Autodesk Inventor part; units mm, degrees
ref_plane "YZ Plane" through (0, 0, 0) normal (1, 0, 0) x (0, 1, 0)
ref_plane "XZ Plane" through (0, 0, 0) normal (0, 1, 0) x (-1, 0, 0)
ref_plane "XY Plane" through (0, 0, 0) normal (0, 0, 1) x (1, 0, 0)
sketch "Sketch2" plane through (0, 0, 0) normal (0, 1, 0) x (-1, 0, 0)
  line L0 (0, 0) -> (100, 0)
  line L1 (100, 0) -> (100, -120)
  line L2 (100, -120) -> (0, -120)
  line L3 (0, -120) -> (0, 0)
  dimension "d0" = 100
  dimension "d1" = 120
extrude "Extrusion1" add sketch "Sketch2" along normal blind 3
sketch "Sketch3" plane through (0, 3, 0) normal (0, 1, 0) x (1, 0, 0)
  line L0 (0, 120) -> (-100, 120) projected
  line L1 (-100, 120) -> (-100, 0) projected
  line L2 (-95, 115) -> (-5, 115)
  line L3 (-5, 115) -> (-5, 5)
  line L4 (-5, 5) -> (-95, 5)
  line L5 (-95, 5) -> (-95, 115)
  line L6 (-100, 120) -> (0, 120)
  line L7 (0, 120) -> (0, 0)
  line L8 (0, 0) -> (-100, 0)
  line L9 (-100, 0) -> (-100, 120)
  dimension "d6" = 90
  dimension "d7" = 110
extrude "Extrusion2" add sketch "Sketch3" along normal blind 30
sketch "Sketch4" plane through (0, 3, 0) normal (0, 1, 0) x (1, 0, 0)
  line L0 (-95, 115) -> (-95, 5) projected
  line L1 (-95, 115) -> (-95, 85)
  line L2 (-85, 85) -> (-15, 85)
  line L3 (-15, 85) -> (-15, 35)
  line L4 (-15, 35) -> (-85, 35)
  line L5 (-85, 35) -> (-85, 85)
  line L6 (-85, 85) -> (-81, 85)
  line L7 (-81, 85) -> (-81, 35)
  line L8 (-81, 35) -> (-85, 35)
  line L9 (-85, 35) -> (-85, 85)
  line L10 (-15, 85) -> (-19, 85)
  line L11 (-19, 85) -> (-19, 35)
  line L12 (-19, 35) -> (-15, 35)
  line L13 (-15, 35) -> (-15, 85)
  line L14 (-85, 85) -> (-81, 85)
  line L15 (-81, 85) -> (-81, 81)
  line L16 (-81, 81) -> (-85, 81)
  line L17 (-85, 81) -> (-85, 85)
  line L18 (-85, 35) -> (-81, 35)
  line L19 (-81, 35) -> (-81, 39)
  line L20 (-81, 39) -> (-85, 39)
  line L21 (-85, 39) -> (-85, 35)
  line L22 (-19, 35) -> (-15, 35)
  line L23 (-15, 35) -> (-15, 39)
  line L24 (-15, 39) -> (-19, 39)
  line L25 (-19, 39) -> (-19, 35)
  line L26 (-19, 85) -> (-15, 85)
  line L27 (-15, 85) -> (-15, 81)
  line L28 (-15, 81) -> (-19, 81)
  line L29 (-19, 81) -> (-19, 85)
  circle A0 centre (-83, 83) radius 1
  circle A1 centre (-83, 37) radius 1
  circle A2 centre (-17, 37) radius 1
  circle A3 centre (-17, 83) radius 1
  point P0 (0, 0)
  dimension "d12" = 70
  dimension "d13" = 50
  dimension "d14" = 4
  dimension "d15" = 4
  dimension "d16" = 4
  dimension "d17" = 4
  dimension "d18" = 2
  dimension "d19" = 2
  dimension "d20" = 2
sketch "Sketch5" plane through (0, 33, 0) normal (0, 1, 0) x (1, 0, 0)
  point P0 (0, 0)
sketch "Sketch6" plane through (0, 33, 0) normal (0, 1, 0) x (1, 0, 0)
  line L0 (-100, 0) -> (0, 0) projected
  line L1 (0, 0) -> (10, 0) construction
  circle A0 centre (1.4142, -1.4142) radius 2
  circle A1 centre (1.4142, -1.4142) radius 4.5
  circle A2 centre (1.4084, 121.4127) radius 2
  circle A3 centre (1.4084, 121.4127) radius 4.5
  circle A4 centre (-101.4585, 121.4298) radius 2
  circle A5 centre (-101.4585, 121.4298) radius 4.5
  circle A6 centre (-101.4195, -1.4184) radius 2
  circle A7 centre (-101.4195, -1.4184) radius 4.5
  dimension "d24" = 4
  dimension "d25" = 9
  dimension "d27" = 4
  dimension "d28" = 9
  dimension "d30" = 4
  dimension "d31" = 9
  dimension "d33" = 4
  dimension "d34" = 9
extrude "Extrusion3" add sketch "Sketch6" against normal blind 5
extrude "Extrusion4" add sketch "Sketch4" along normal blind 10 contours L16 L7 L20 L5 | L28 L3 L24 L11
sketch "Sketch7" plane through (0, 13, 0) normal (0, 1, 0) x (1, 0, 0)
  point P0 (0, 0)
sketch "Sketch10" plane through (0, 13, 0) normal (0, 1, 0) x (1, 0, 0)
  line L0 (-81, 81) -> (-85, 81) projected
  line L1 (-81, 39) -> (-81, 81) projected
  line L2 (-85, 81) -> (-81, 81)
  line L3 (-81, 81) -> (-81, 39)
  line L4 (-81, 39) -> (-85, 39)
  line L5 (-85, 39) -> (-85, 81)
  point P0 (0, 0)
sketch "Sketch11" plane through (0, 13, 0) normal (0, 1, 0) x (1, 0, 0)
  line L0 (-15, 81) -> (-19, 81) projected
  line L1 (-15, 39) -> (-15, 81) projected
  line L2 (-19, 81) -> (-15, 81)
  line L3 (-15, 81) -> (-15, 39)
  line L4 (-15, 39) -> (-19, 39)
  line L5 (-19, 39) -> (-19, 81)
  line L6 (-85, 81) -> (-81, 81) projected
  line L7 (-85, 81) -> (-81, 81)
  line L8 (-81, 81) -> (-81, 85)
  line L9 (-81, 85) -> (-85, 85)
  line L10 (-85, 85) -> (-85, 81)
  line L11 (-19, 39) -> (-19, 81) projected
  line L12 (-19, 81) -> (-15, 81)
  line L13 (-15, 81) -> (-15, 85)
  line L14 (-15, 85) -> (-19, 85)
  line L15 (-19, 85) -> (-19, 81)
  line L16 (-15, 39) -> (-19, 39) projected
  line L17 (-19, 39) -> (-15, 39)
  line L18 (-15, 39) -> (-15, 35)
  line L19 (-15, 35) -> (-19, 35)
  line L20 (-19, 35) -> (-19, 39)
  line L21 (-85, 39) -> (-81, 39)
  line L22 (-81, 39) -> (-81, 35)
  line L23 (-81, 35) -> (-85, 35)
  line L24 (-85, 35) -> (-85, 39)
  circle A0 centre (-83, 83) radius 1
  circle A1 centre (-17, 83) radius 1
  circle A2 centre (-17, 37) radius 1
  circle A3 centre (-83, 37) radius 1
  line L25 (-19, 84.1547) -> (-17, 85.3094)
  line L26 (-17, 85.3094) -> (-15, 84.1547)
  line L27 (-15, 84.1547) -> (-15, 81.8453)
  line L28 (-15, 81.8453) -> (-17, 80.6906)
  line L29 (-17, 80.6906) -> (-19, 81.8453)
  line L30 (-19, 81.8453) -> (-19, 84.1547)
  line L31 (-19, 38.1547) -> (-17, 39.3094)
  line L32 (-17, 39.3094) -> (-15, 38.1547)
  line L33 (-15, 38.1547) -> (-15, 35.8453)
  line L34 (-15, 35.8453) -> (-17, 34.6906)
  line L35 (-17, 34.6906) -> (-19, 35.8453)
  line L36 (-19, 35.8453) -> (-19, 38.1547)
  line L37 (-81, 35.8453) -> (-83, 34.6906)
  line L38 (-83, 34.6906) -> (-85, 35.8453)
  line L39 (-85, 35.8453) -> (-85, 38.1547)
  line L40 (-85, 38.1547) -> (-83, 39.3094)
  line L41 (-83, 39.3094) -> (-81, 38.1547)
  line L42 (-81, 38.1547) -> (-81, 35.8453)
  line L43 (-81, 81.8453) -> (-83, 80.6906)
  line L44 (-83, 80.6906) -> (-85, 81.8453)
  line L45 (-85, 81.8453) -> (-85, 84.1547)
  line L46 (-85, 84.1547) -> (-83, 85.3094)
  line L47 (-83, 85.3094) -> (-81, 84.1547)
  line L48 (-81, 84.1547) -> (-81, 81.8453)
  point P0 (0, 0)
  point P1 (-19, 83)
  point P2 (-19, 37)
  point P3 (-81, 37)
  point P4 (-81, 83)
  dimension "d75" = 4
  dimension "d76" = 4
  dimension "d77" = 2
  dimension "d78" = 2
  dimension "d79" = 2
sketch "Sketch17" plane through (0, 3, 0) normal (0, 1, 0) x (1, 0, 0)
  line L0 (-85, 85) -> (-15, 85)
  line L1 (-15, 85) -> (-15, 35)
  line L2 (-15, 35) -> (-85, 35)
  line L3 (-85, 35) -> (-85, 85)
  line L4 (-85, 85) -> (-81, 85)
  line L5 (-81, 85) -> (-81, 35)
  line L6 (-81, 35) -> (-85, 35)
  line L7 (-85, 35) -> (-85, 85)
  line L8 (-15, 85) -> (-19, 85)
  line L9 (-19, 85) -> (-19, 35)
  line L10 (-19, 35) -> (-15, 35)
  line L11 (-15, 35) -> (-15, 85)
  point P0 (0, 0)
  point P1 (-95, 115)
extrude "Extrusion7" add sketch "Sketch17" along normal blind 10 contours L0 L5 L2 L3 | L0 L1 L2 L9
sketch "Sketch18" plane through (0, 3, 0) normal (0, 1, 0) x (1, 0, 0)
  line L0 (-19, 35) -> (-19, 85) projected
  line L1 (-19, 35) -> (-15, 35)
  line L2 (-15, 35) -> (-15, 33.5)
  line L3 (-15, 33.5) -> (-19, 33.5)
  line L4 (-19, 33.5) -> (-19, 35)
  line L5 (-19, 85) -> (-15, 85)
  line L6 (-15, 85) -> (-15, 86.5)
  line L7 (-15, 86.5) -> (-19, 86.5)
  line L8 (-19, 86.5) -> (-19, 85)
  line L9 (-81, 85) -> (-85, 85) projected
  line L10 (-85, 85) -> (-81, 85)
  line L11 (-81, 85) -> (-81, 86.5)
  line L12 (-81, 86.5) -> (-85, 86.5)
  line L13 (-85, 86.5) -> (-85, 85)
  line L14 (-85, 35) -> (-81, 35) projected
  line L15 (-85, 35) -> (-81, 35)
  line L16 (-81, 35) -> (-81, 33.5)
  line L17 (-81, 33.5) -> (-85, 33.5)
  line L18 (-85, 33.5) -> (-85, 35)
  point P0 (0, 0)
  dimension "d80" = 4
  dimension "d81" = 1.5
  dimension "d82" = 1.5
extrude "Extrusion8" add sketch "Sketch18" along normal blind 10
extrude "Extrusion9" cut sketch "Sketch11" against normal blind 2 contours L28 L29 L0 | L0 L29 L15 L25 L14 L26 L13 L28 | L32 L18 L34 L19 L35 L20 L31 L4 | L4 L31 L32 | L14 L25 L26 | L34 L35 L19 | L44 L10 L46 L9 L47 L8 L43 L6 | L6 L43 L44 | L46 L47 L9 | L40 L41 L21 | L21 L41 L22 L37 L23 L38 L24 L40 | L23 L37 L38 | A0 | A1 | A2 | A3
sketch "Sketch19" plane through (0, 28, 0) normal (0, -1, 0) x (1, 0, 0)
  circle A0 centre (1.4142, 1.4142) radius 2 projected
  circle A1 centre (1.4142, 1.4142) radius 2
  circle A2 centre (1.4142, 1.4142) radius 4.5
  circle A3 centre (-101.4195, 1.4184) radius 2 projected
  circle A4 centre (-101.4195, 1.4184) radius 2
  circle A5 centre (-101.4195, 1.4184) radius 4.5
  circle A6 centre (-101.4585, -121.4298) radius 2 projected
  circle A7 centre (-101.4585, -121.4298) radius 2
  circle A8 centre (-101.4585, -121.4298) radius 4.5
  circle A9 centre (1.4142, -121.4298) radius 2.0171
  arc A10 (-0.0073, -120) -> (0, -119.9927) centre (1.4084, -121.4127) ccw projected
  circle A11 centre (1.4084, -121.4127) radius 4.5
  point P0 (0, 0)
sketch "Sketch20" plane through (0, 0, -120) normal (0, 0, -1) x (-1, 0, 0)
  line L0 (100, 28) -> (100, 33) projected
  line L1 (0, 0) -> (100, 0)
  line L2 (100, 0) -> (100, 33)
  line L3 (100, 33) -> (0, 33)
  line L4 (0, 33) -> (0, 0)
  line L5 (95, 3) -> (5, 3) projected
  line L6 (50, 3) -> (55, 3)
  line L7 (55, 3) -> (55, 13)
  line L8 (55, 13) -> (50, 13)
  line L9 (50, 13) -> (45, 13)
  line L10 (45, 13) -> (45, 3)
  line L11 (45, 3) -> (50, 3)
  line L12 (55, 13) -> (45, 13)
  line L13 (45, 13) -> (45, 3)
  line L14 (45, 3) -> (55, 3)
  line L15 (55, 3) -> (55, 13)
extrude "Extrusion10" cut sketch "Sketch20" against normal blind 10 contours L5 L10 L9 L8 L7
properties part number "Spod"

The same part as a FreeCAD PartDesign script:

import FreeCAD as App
import Part
import Sketcher

V = App.Vector
Q = App.Units.Quantity

doc = App.newDocument("Part")
body = doc.addObject("PartDesign::Body", "Body")

# Sketch on XZ plane
sketch1 = body.newObject("Sketcher::SketchObject", "Sketch")
sketch1.AttachmentSupport = (doc.getObject("XZ_Plane"), [""])
sketch1.MapMode = "FlatFace"
sketch1.addGeometry(Part.LineSegment(V(-100, 0, 0), V(0, 0, 0)), False)
sketch1.addGeometry(Part.LineSegment(V(0, 0, 0), V(0, -120, 0)), False)
sketch1.addGeometry(Part.LineSegment(V(0, -120, 0), V(-100, -120, 0)), False)
sketch1.addGeometry(Part.LineSegment(V(-100, -120, 0), V(-100, 0, 0)), False)
sketch1.addConstraint(Sketcher.Constraint("Coincident", 0, 2, 1, 1))
sketch1.addConstraint(Sketcher.Constraint("Coincident", 1, 2, 2, 1))
sketch1.addConstraint(Sketcher.Constraint("Coincident", 2, 2, 3, 1))
sketch1.addConstraint(Sketcher.Constraint("Coincident", 3, 2, 0, 1))
sketch1.addConstraint(Sketcher.Constraint("Horizontal", 0))
sketch1.addConstraint(Sketcher.Constraint("Vertical", 1))
sketch1.addConstraint(Sketcher.Constraint("Horizontal", 2))
sketch1.addConstraint(Sketcher.Constraint("Vertical", 3))
sketch1.addConstraint(Sketcher.Constraint("Coincident", 0, 2, -1, 1))
sketch1.addConstraint(Sketcher.Constraint("DistanceX", 0, 1, 0, 2, 100.0))
sketch1.addConstraint(Sketcher.Constraint("DistanceY", 1, 2, 1, 1, 120.0))
pad1 = body.newObject("PartDesign::Pad", "Pad")
pad1.Profile = sketch1
pad1.Length = 3
pad1.Reversed = True

# Sketch on XZ plane
sketch2 = body.newObject("Sketcher::SketchObject", "Sketch001")
sketch2.AttachmentSupport = (doc.getObject("XZ_Plane"), [""])
sketch2.MapMode = "FlatFace"
sketch2.AttachmentOffset = App.Placement(V(0, 0, -3), App.Rotation())
sketch2.addGeometry(Part.LineSegment(V(0, 0, 0), V(0, -120, 0)), False)
sketch2.addGeometry(Part.LineSegment(V(0, -120, 0), V(-100, -120, 0)), False)
sketch2.addGeometry(Part.LineSegment(V(-100, -120, 0), V(-100, 0, 0)), False)
sketch2.addGeometry(Part.LineSegment(V(-100, 0, 0), V(0, 0, 0)), False)
sketch2.addGeometry(Part.LineSegment(V(-95, -5, 0), V(-95, -115, 0)), False)
sketch2.addGeometry(Part.LineSegment(V(-95, -115, 0), V(-5, -115, 0)), False)
sketch2.addGeometry(Part.LineSegment(V(-5, -115, 0), V(-5, -5, 0)), False)
sketch2.addGeometry(Part.LineSegment(V(-5, -5, 0), V(-95, -5, 0)), False)
sketch2.addConstraint(Sketcher.Constraint("Coincident", 0, 2, 1, 1))
sketch2.addConstraint(Sketcher.Constraint("Coincident", 1, 2, 2, 1))
sketch2.addConstraint(Sketcher.Constraint("Coincident", 2, 2, 3, 1))
sketch2.addConstraint(Sketcher.Constraint("Coincident", 3, 2, 0, 1))
sketch2.addConstraint(Sketcher.Constraint("Coincident", 4, 2, 5, 1))
sketch2.addConstraint(Sketcher.Constraint("Coincident", 5, 2, 6, 1))
sketch2.addConstraint(Sketcher.Constraint("Coincident", 6, 2, 7, 1))
sketch2.addConstraint(Sketcher.Constraint("Coincident", 7, 2, 4, 1))
sketch2.addConstraint(Sketcher.Constraint("Vertical", 0))
sketch2.addConstraint(Sketcher.Constraint("Horizontal", 1))
sketch2.addConstraint(Sketcher.Constraint("Vertical", 2))
sketch2.addConstraint(Sketcher.Constraint("Horizontal", 3))
sketch2.addConstraint(Sketcher.Constraint("Vertical", 4))
sketch2.addConstraint(Sketcher.Constraint("Horizontal", 5))
sketch2.addConstraint(Sketcher.Constraint("Vertical", 6))
sketch2.addConstraint(Sketcher.Constraint("Horizontal", 7))
sketch2.addConstraint(Sketcher.Constraint("Coincident", 3, 2, -1, 1))
sketch2.addConstraint(Sketcher.Constraint("DistanceX", 5, 1, 5, 2, 90.0))
sketch2.addConstraint(Sketcher.Constraint("DistanceY", 4, 2, 4, 1, 110.0))
sketch2.addConstraint(Sketcher.Constraint("DistanceX", 1, 2, 1, 1, 100.0))
sketch2.addConstraint(Sketcher.Constraint("DistanceY", 0, 2, 0, 1, 120.0))
sketch2.addConstraint(Sketcher.Constraint("DistanceX", 4, 2, -1, 1, 95.0))
sketch2.addConstraint(Sketcher.Constraint("DistanceY", 4, 2, -1, 1, 115.0))
pad2 = body.newObject("PartDesign::Pad", "Pad001")
pad2.Profile = sketch2
pad2.Length = 30
pad2.Reversed = True

# Sketch on XZ plane
sketch3 = body.newObject("Sketcher::SketchObject", "Sketch002")
sketch3.AttachmentSupport = (doc.getObject("XZ_Plane"), [""])
sketch3.MapMode = "FlatFace"
sketch3.AttachmentOffset = App.Placement(V(0, 0, -33), App.Rotation())
sketch3.addGeometry(Part.Circle(V(1.4, 1.4, 0), V(0, 0, 1), 4.5), False)
sketch3.addGeometry(Part.Circle(V(1.4, 1.4, 0), V(0, 0, 1), 2), False)
sketch3.addGeometry(Part.Circle(V(-101.4, 1.4, 0), V(0, 0, 1), 4.5), False)
sketch3.addGeometry(Part.Circle(V(-101.4, 1.4, 0), V(0, 0, 1), 2), False)
sketch3.addGeometry(Part.Circle(V(1.4, -121.4, 0), V(0, 0, 1), 4.5), False)
sketch3.addGeometry(Part.Circle(V(1.4, -121.4, 0), V(0, 0, 1), 2), False)
sketch3.addGeometry(Part.Circle(V(-101.5, -121.4, 0), V(0, 0, 1), 4.5), False)
sketch3.addGeometry(Part.Circle(V(-101.5, -121.4, 0), V(0, 0, 1), 2), False)
sketch3.addConstraint(Sketcher.Constraint("Coincident", 1, 3, 0, 3))
sketch3.addConstraint(Sketcher.Constraint("Coincident", 3, 3, 2, 3))
sketch3.addConstraint(Sketcher.Constraint("Coincident", 5, 3, 4, 3))
sketch3.addConstraint(Sketcher.Constraint("Coincident", 7, 3, 6, 3))
sketch3.addConstraint(Sketcher.Constraint("Equal", 0, 2))
sketch3.addConstraint(Sketcher.Constraint("Equal", 1, 3))
sketch3.addConstraint(Sketcher.Constraint("Equal", 2, 4))
sketch3.addConstraint(Sketcher.Constraint("Equal", 3, 5))
sketch3.addConstraint(Sketcher.Constraint("Equal", 4, 6))
sketch3.addConstraint(Sketcher.Constraint("Equal", 5, 7))
sketch3.addConstraint(Sketcher.Constraint("Diameter", 0, 9.0))
sketch3.addConstraint(Sketcher.Constraint("Diameter", 1, 4.0))
sketch3.addConstraint(Sketcher.Constraint("DistanceY", 4, 3, 0, 3, 122.827))
sketch3.addConstraint(Sketcher.Constraint("DistanceX", 2, 3, 4, 3, 102.828))
sketch3.addConstraint(Sketcher.Constraint("DistanceY", 4, 3, 2, 3, 122.831))
sketch3.addConstraint(Sketcher.Constraint("DistanceX", 6, 3, 4, 3, 102.867))
sketch3.addConstraint(Sketcher.Constraint("DistanceY", 6, 3, 4, 3, 0.017))
sketch3.addConstraint(Sketcher.Constraint("DistanceX", -1, 1, 0, 3, 1.4142))
sketch3.addConstraint(Sketcher.Constraint("DistanceY", -1, 1, 0, 3, 1.4142))
sketch3.addConstraint(Sketcher.Constraint("DistanceX", 2, 3, -1, 1, 101.4195))
pad3 = body.newObject("PartDesign::Pad", "Pad002")
pad3.Profile = sketch3
pad3.Length = 5

# Sketch on XZ plane
sketch4 = body.newObject("Sketcher::SketchObject", "Sketch003")
sketch4.AttachmentSupport = (doc.getObject("XZ_Plane"), [""])
sketch4.MapMode = "FlatFace"
sketch4.AttachmentOffset = App.Placement(V(0, 0, -3), App.Rotation())
sketch4.addGeometry(Part.LineSegment(V(-81, -81, 0), V(-85, -81, 0)), False)
sketch4.addGeometry(Part.LineSegment(V(-85, -81, 0), V(-85, -39, 0)), False)
sketch4.addGeometry(Part.LineSegment(V(-85, -39, 0), V(-81, -39, 0)), False)
sketch4.addGeometry(Part.LineSegment(V(-81, -39, 0), V(-81, -81, 0)), False)
sketch4.addGeometry(Part.LineSegment(V(-15, -81, 0), V(-19, -81, 0)), False)
sketch4.addGeometry(Part.LineSegment(V(-19, -81, 0), V(-19, -39, 0)), False)
sketch4.addGeometry(Part.LineSegment(V(-19, -39, 0), V(-15, -39, 0)), False)
sketch4.addGeometry(Part.LineSegment(V(-15, -39, 0), V(-15, -81, 0)), False)
sketch4.addConstraint(Sketcher.Constraint("Coincident", 0, 2, 1, 1))
sketch4.addConstraint(Sketcher.Constraint("Coincident", 1, 2, 2, 1))
sketch4.addConstraint(Sketcher.Constraint("Coincident", 2, 2, 3, 1))
sketch4.addConstraint(Sketcher.Constraint("Coincident", 3, 2, 0, 1))
sketch4.addConstraint(Sketcher.Constraint("Coincident", 4, 2, 5, 1))
sketch4.addConstraint(Sketcher.Constraint("Coincident", 5, 2, 6, 1))
sketch4.addConstraint(Sketcher.Constraint("Coincident", 6, 2, 7, 1))
sketch4.addConstraint(Sketcher.Constraint("Coincident", 7, 2, 4, 1))
sketch4.addConstraint(Sketcher.Constraint("Horizontal", 0))
sketch4.addConstraint(Sketcher.Constraint("Vertical", 1))
sketch4.addConstraint(Sketcher.Constraint("Horizontal", 2))
sketch4.addConstraint(Sketcher.Constraint("Vertical", 3))
sketch4.addConstraint(Sketcher.Constraint("Horizontal", 4))
sketch4.addConstraint(Sketcher.Constraint("Vertical", 5))
sketch4.addConstraint(Sketcher.Constraint("Horizontal", 6))
sketch4.addConstraint(Sketcher.Constraint("Vertical", 7))
sketch4.addConstraint(Sketcher.Constraint("Horizontal", 3, 2, 4, 2))
sketch4.addConstraint(Sketcher.Constraint("Horizontal", 2, 2, 5, 2))
sketch4.addConstraint(Sketcher.Constraint("Equal", 2, 4))
sketch4.addConstraint(Sketcher.Constraint("DistanceX", 0, 2, 0, 1, 4.0))
sketch4.addConstraint(Sketcher.Constraint("DistanceX", 1, 2, 6, 2, 70.0))
sketch4.addConstraint(Sketcher.Constraint("DistanceY", 1, 1, 1, 2, 42.0))
sketch4.addConstraint(Sketcher.Constraint("DistanceX", 0, 2, -1, 1, 85.0))
sketch4.addConstraint(Sketcher.Constraint("DistanceY", 0, 2, -1, 1, 81.0))
pad4 = body.newObject("PartDesign::Pad", "Pad003")
pad4.Profile = sketch4
pad4.Length = 10
pad4.Reversed = True

# Sketch on XZ plane
sketch5 = body.newObject("Sketcher::SketchObject", "Sketch004")
sketch5.AttachmentSupport = (doc.getObject("XZ_Plane"), [""])
sketch5.MapMode = "FlatFace"
sketch5.AttachmentOffset = App.Placement(V(0, 0, -3), App.Rotation())
sketch5.addGeometry(Part.LineSegment(V(-81, -85, 0), V(-85, -85, 0)), False)
sketch5.addGeometry(Part.LineSegment(V(-85, -85, 0), V(-85, -35, 0)), False)
sketch5.addGeometry(Part.LineSegment(V(-85, -35, 0), V(-81, -35, 0)), False)
sketch5.addGeometry(Part.LineSegment(V(-81, -35, 0), V(-81, -85, 0)), False)
sketch5.addGeometry(Part.LineSegment(V(-15, -85, 0), V(-19, -85, 0)), False)
sketch5.addGeometry(Part.LineSegment(V(-19, -85, 0), V(-19, -35, 0)), False)
sketch5.addGeometry(Part.LineSegment(V(-19, -35, 0), V(-15, -35, 0)), False)
sketch5.addGeometry(Part.LineSegment(V(-15, -35, 0), V(-15, -85, 0)), False)
sketch5.addConstraint(Sketcher.Constraint("Coincident", 0, 2, 1, 1))
sketch5.addConstraint(Sketcher.Constraint("Coincident", 1, 2, 2, 1))
sketch5.addConstraint(Sketcher.Constraint("Coincident", 2, 2, 3, 1))
sketch5.addConstraint(Sketcher.Constraint("Coincident", 3, 2, 0, 1))
sketch5.addConstraint(Sketcher.Constraint("Coincident", 4, 2, 5, 1))
sketch5.addConstraint(Sketcher.Constraint("Coincident", 5, 2, 6, 1))
sketch5.addConstraint(Sketcher.Constraint("Coincident", 6, 2, 7, 1))
sketch5.addConstraint(Sketcher.Constraint("Coincident", 7, 2, 4, 1))
sketch5.addConstraint(Sketcher.Constraint("Horizontal", 0))
sketch5.addConstraint(Sketcher.Constraint("Vertical", 1))
sketch5.addConstraint(Sketcher.Constraint("Horizontal", 2))
sketch5.addConstraint(Sketcher.Constraint("Vertical", 3))
sketch5.addConstraint(Sketcher.Constraint("Horizontal", 4))
sketch5.addConstraint(Sketcher.Constraint("Vertical", 5))
sketch5.addConstraint(Sketcher.Constraint("Horizontal", 6))
sketch5.addConstraint(Sketcher.Constraint("Vertical", 7))
sketch5.addConstraint(Sketcher.Constraint("Horizontal", 3, 2, 4, 2))
sketch5.addConstraint(Sketcher.Constraint("Horizontal", 2, 2, 5, 2))
sketch5.addConstraint(Sketcher.Constraint("Equal", 2, 4))
sketch5.addConstraint(Sketcher.Constraint("DistanceX", 0, 2, 0, 1, 4.0))
sketch5.addConstraint(Sketcher.Constraint("DistanceY", 1, 1, 1, 2, 50.0))
sketch5.addConstraint(Sketcher.Constraint("DistanceX", 0, 2, -1, 1, 85.0))
sketch5.addConstraint(Sketcher.Constraint("DistanceY", 0, 2, -1, 1, 85.0))
sketch5.addConstraint(Sketcher.Constraint("DistanceX", 4, 2, -1, 1, 19.0))
pad5 = body.newObject("PartDesign::Pad", "Pad004")
pad5.Profile = sketch5
pad5.Length = 10
pad5.Reversed = True

# Sketch on XZ plane
sketch6 = body.newObject("Sketcher::SketchObject", "Sketch005")
sketch6.AttachmentSupport = (doc.getObject("XZ_Plane"), [""])
sketch6.MapMode = "FlatFace"
sketch6.AttachmentOffset = App.Placement(V(0, 0, -3), App.Rotation())
sketch6.addGeometry(Part.LineSegment(V(-19, -86.5, 0), V(-19, -85, 0)), False)
sketch6.addGeometry(Part.LineSegment(V(-19, -85, 0), V(-15, -85, 0)), False)
sketch6.addGeometry(Part.LineSegment(V(-15, -85, 0), V(-15, -86.5, 0)), False)
sketch6.addGeometry(Part.LineSegment(V(-15, -86.5, 0), V(-19, -86.5, 0)), False)
sketch6.addGeometry(Part.LineSegment(V(-15, -35, 0), V(-19, -35, 0)), False)
sketch6.addGeometry(Part.LineSegment(V(-19, -35, 0), V(-19, -33.5, 0)), False)
sketch6.addGeometry(Part.LineSegment(V(-19, -33.5, 0), V(-15, -33.5, 0)), False)
sketch6.addGeometry(Part.LineSegment(V(-15, -33.5, 0), V(-15, -35, 0)), False)
sketch6.addGeometry(Part.LineSegment(V(-85, -85, 0), V(-81, -85, 0)), False)
sketch6.addGeometry(Part.LineSegment(V(-81, -85, 0), V(-81, -86.5, 0)), False)
sketch6.addGeometry(Part.LineSegment(V(-81, -86.5, 0), V(-85, -86.5, 0)), False)
sketch6.addGeometry(Part.LineSegment(V(-85, -86.5, 0), V(-85, -85, 0)), False)
sketch6.addGeometry(Part.LineSegment(V(-81, -35, 0), V(-85, -35, 0)), False)
sketch6.addGeometry(Part.LineSegment(V(-85, -35, 0), V(-85, -33.5, 0)), False)
sketch6.addGeometry(Part.LineSegment(V(-85, -33.5, 0), V(-81, -33.5, 0)), False)
sketch6.addGeometry(Part.LineSegment(V(-81, -33.5, 0), V(-81, -35, 0)), False)
sketch6.addConstraint(Sketcher.Constraint("Coincident", 0, 2, 1, 1))
sketch6.addConstraint(Sketcher.Constraint("Coincident", 1, 2, 2, 1))
sketch6.addConstraint(Sketcher.Constraint("Coincident", 2, 2, 3, 1))
sketch6.addConstraint(Sketcher.Constraint("Coincident", 3, 2, 0, 1))
sketch6.addConstraint(Sketcher.Constraint("Coincident", 4, 2, 5, 1))
sketch6.addConstraint(Sketcher.Constraint("Coincident", 5, 2, 6, 1))
sketch6.addConstraint(Sketcher.Constraint("Coincident", 6, 2, 7, 1))
sketch6.addConstraint(Sketcher.Constraint("Coincident", 7, 2, 4, 1))
sketch6.addConstraint(Sketcher.Constraint("Coincident", 8, 2, 9, 1))
sketch6.addConstraint(Sketcher.Constraint("Coincident", 9, 2, 10, 1))
sketch6.addConstraint(Sketcher.Constraint("Coincident", 10, 2, 11, 1))
sketch6.addConstraint(Sketcher.Constraint("Coincident", 11, 2, 8, 1))
sketch6.addConstraint(Sketcher.Constraint("Coincident", 12, 2, 13, 1))
sketch6.addConstraint(Sketcher.Constraint("Coincident", 13, 2, 14, 1))
sketch6.addConstraint(Sketcher.Constraint("Coincident", 14, 2, 15, 1))
sketch6.addConstraint(Sketcher.Constraint("Coincident", 15, 2, 12, 1))
sketch6.addConstraint(Sketcher.Constraint("Vertical", 0))
sketch6.addConstraint(Sketcher.Constraint("Horizontal", 1))
sketch6.addConstraint(Sketcher.Constraint("Vertical", 2))
sketch6.addConstraint(Sketcher.Constraint("Horizontal", 3))
sketch6.addConstraint(Sketcher.Constraint("Horizontal", 4))
sketch6.addConstraint(Sketcher.Constraint("Vertical", 5))
sketch6.addConstraint(Sketcher.Constraint("Horizontal", 6))
sketch6.addConstraint(Sketcher.Constraint("Vertical", 7))
sketch6.addConstraint(Sketcher.Constraint("Horizontal", 8))
sketch6.addConstraint(Sketcher.Constraint("Vertical", 9))
sketch6.addConstraint(Sketcher.Constraint("Horizontal", 10))
sketch6.addConstraint(Sketcher.Constraint("Vertical", 11))
sketch6.addConstraint(Sketcher.Constraint("Horizontal", 12))
sketch6.addConstraint(Sketcher.Constraint("Vertical", 13))
sketch6.addConstraint(Sketcher.Constraint("Horizontal", 14))
sketch6.addConstraint(Sketcher.Constraint("Vertical", 15))
sketch6.addConstraint(Sketcher.Constraint("Horizontal", 1, 2, 8, 2))
sketch6.addConstraint(Sketcher.Constraint("Horizontal", 3, 2, 9, 2))
sketch6.addConstraint(Sketcher.Constraint("Horizontal", 7, 2, 12, 2))
sketch6.addConstraint(Sketcher.Constraint("Horizontal", 6, 2, 13, 2))
sketch6.addConstraint(Sketcher.Constraint("Vertical", 3, 2, 4, 2))
sketch6.addConstraint(Sketcher.Constraint("Vertical", 2, 2, 6, 2))
sketch6.addConstraint(Sketcher.Constraint("Vertical", 11, 2, 12, 2))
sketch6.addConstraint(Sketcher.Constraint("Vertical", 9, 2, 14, 2))
sketch6.addConstraint(Sketcher.Constraint("Equal", 6, 8))
sketch6.addConstraint(Sketcher.Constraint("Equal", 2, 5))
sketch6.addConstraint(Sketcher.Constraint("DistanceX", 1, 1, 1, 2, 4.0))
sketch6.addConstraint(Sketcher.Constraint("DistanceY", 0, 1, 0, 2, 1.5))
sketch6.addConstraint(Sketcher.Constraint("DistanceX", 0, 2, -1, 1, 19.0))
sketch6.addConstraint(Sketcher.Constraint("DistanceY", 0, 2, -1, 1, 85.0))
sketch6.addConstraint(Sketcher.Constraint("DistanceY", 4, 2, -1, 1, 35.0))
sketch6.addConstraint(Sketcher.Constraint("DistanceX", 8, 2, -1, 1, 81.0))
pad6 = body.newObject("PartDesign::Pad", "Pad005")
pad6.Profile = sketch6
pad6.Length = 10
pad6.Reversed = True

# Sketch on XZ plane
sketch7 = body.newObject("Sketcher::SketchObject", "Sketch006")
sketch7.AttachmentSupport = (doc.getObject("XZ_Plane"), [""])
sketch7.MapMode = "FlatFace"
sketch7.AttachmentOffset = App.Placement(V(0, 0, -13), App.Rotation())
sketch7.addGeometry(Part.LineSegment(V(-17, -80.7, 0), V(-15, -81.8, 0)), False)
sketch7.addGeometry(Part.LineSegment(V(-15, -81.8, 0), V(-15, -84.2, 0)), False)
sketch7.addGeometry(Part.LineSegment(V(-15, -84.2, 0), V(-17, -85.3, 0)), False)
sketch7.addGeometry(Part.LineSegment(V(-17, -85.3, 0), V(-19, -84.2, 0)), False)
sketch7.addGeometry(Part.LineSegment(V(-19, -84.2, 0), V(-19, -81.8, 0)), False)
sketch7.addGeometry(Part.LineSegment(V(-19, -81.8, 0), V(-17, -80.7, 0)), False)
sketch7.addGeometry(Part.LineSegment(V(-15, -38.2, 0), V(-17, -39.3, 0)), False)
sketch7.addGeometry(Part.LineSegment(V(-17, -39.3, 0), V(-19, -38.2, 0)), False)
sketch7.addGeometry(Part.LineSegment(V(-19, -38.2, 0), V(-19, -35.8, 0)), False)
sketch7.addGeometry(Part.LineSegment(V(-19, -35.8, 0), V(-17, -34.7, 0)), False)
sketch7.addGeometry(Part.LineSegment(V(-17, -34.7, 0), V(-15, -35.8, 0)), False)
sketch7.addGeometry(Part.LineSegment(V(-15, -35.8, 0), V(-15, -38.2, 0)), False)
sketch7.addGeometry(Part.LineSegment(V(-85, -81.8, 0), V(-83, -80.7, 0)), False)
sketch7.addGeometry(Part.LineSegment(V(-83, -80.7, 0), V(-81, -81.8, 0)), False)
sketch7.addGeometry(Part.LineSegment(V(-81, -81.8, 0), V(-81, -84.2, 0)), False)
sketch7.addGeometry(Part.LineSegment(V(-81, -84.2, 0), V(-83, -85.3, 0)), False)
sketch7.addGeometry(Part.LineSegment(V(-83, -85.3, 0), V(-85, -84.2, 0)), False)
sketch7.addGeometry(Part.LineSegment(V(-85, -84.2, 0), V(-85, -81.8, 0)), False)
sketch7.addGeometry(Part.LineSegment(V(-83, -39.3, 0), V(-85, -38.2, 0)), False)
sketch7.addGeometry(Part.LineSegment(V(-85, -38.2, 0), V(-85, -35.8, 0)), False)
sketch7.addGeometry(Part.LineSegment(V(-85, -35.8, 0), V(-83, -34.7, 0)), False)
sketch7.addGeometry(Part.LineSegment(V(-83, -34.7, 0), V(-81, -35.8, 0)), False)
sketch7.addGeometry(Part.LineSegment(V(-81, -35.8, 0), V(-81, -38.2, 0)), False)
sketch7.addGeometry(Part.LineSegment(V(-81, -38.2, 0), V(-83, -39.3, 0)), False)
sketch7.addConstraint(Sketcher.Constraint("Coincident", 0, 2, 1, 1))
sketch7.addConstraint(Sketcher.Constraint("Coincident", 1, 2, 2, 1))
sketch7.addConstraint(Sketcher.Constraint("Coincident", 2, 2, 3, 1))
sketch7.addConstraint(Sketcher.Constraint("Coincident", 3, 2, 4, 1))
sketch7.addConstraint(Sketcher.Constraint("Coincident", 4, 2, 5, 1))
sketch7.addConstraint(Sketcher.Constraint("Coincident", 5, 2, 0, 1))
sketch7.addConstraint(Sketcher.Constraint("Coincident", 6, 2, 7, 1))
sketch7.addConstraint(Sketcher.Constraint("Coincident", 7, 2, 8, 1))
sketch7.addConstraint(Sketcher.Constraint("Coincident", 8, 2, 9, 1))
sketch7.addConstraint(Sketcher.Constraint("Coincident", 9, 2, 10, 1))
sketch7.addConstraint(Sketcher.Constraint("Coincident", 10, 2, 11, 1))
sketch7.addConstraint(Sketcher.Constraint("Coincident", 11, 2, 6, 1))
sketch7.addConstraint(Sketcher.Constraint("Coincident", 12, 2, 13, 1))
sketch7.addConstraint(Sketcher.Constraint("Coincident", 13, 2, 14, 1))
sketch7.addConstraint(Sketcher.Constraint("Coincident", 14, 2, 15, 1))
sketch7.addConstraint(Sketcher.Constraint("Coincident", 15, 2, 16, 1))
sketch7.addConstraint(Sketcher.Constraint("Coincident", 16, 2, 17, 1))
sketch7.addConstraint(Sketcher.Constraint("Coincident", 17, 2, 12, 1))
sketch7.addConstraint(Sketcher.Constraint("Coincident", 18, 2, 19, 1))
sketch7.addConstraint(Sketcher.Constraint("Coincident", 19, 2, 20, 1))
sketch7.addConstraint(Sketcher.Constraint("Coincident", 20, 2, 21, 1))
sketch7.addConstraint(Sketcher.Constraint("Coincident", 21, 2, 22, 1))
sketch7.addConstraint(Sketcher.Constraint("Coincident", 22, 2, 23, 1))
sketch7.addConstraint(Sketcher.Constraint("Coincident", 23, 2, 18, 1))
sketch7.addConstraint(Sketcher.Constraint("Vertical", 1))
sketch7.addConstraint(Sketcher.Constraint("Vertical", 4))
sketch7.addConstraint(Sketcher.Constraint("Vertical", 8))
sketch7.addConstraint(Sketcher.Constraint("Vertical", 11))
sketch7.addConstraint(Sketcher.Constraint("Vertical", 14))
sketch7.addConstraint(Sketcher.Constraint("Vertical", 17))
sketch7.addConstraint(Sketcher.Constraint("Vertical", 19))
sketch7.addConstraint(Sketcher.Constraint("Vertical", 22))
sketch7.addConstraint(Sketcher.Constraint("Parallel", 0, 3))
sketch7.addConstraint(Sketcher.Constraint("Parallel", 2, 5))
sketch7.addConstraint(Sketcher.Constraint("Parallel", 5, 6))
sketch7.addConstraint(Sketcher.Constraint("Parallel", 3, 7))
sketch7.addConstraint(Sketcher.Constraint("Parallel", 6, 9))
sketch7.addConstraint(Sketcher.Constraint("Parallel", 7, 10))
sketch7.addConstraint(Sketcher.Constraint("Parallel", 9, 12))
sketch7.addConstraint(Sketcher.Constraint("Parallel", 10, 13))
sketch7.addConstraint(Sketcher.Constraint("Parallel", 12, 15))
sketch7.addConstraint(Sketcher.Constraint("Parallel", 13, 16))
sketch7.addConstraint(Sketcher.Constraint("Parallel", 16, 18))
sketch7.addConstraint(Sketcher.Constraint("Parallel", 15, 20))
sketch7.addConstraint(Sketcher.Constraint("Parallel", 18, 21))
sketch7.addConstraint(Sketcher.Constraint("Parallel", 20, 23))
sketch7.addConstraint(Sketcher.Constraint("Horizontal", 1, 2, 3, 2))
sketch7.addConstraint(Sketcher.Constraint("Horizontal", 0, 2, 4, 2))
sketch7.addConstraint(Sketcher.Constraint("Horizontal", 8, 2, 10, 2))
sketch7.addConstraint(Sketcher.Constraint("Horizontal", 7, 2, 11, 2))
sketch7.addConstraint(Sketcher.Constraint("Horizontal", 5, 2, 12, 2))
sketch7.addConstraint(Sketcher.Constraint("Horizontal", 4, 2, 13, 2))
sketch7.addConstraint(Sketcher.Constraint("Horizontal", 3, 2, 14, 2))
sketch7.addConstraint(Sketcher.Constraint("Horizontal", 2, 2, 15, 2))
sketch7.addConstraint(Sketcher.Constraint("Horizontal", 14, 2, 16, 2))
sketch7.addConstraint(Sketcher.Constraint("Horizontal", 11, 2, 18, 2))
sketch7.addConstraint(Sketcher.Constraint("Horizontal", 10, 2, 19, 2))
sketch7.addConstraint(Sketcher.Constraint("Horizontal", 9, 2, 20, 2))
sketch7.addConstraint(Sketcher.Constraint("Horizontal", 19, 2, 21, 2))
sketch7.addConstraint(Sketcher.Constraint("Horizontal", 18, 2, 22, 2))
sketch7.addConstraint(Sketcher.Constraint("Vertical", 2, 2, 5, 2))
sketch7.addConstraint(Sketcher.Constraint("Vertical", 5, 2, 6, 2))
sketch7.addConstraint(Sketcher.Constraint("Vertical", 4, 2, 7, 2))
sketch7.addConstraint(Sketcher.Constraint("Vertical", 17, 2, 18, 2))
sketch7.addConstraint(Sketcher.Constraint("Equal", 4, 8))
sketch7.addConstraint(Sketcher.Constraint("DistanceX", 2, 2, 1, 2, 2.0))
sketch7.addConstraint(Sketcher.Constraint("Angle", 0, Q("-30 deg")))
sketch7.addConstraint(Sketcher.Constraint("DistanceX", 0, 2, -1, 1, 15.0))
sketch7.addConstraint(Sketcher.Constraint("DistanceX", 12, 2, -1, 1, 83.0))
sketch7.addConstraint(Sketcher.Constraint("DistanceY", 3, 2, 7, 2, 46.0))
sketch7.addConstraint(Sketcher.Constraint("DistanceY", 1, 2, 1, 1, 2.3094))
sketch7.addConstraint(Sketcher.Constraint("DistanceY", 0, 2, -1, 1, 81.8453))
pocket1 = body.newObject("PartDesign::Pocket", "Pocket")
pocket1.Profile = sketch7
pocket1.Length = 2
pocket1.Reversed = True

# Sketch on XY plane
sketch8 = body.newObject("Sketcher::SketchObject", "Sketch007")
sketch8.AttachmentSupport = (doc.getObject("XY_Plane"), [""])
sketch8.MapMode = "FlatFace"
sketch8.AttachmentOffset = App.Placement(V(0, 0, -120), App.Rotation())
sketch8.addGeometry(Part.LineSegment(V(-45, 3, 0), V(-55, 3, 0)), False)
sketch8.addGeometry(Part.LineSegment(V(-55, 3, 0), V(-55, 13, 0)), False)
sketch8.addGeometry(Part.LineSegment(V(-55, 13, 0), V(-45, 13, 0)), False)
sketch8.addGeometry(Part.LineSegment(V(-45, 13, 0), V(-45, 3, 0)), False)
sketch8.addConstraint(Sketcher.Constraint("Coincident", 0, 2, 1, 1))
sketch8.addConstraint(Sketcher.Constraint("Coincident", 1, 2, 2, 1))
sketch8.addConstraint(Sketcher.Constraint("Coincident", 2, 2, 3, 1))
sketch8.addConstraint(Sketcher.Constraint("Coincident", 3, 2, 0, 1))
sketch8.addConstraint(Sketcher.Constraint("Horizontal", 0))
sketch8.addConstraint(Sketcher.Constraint("Vertical", 1))
sketch8.addConstraint(Sketcher.Constraint("Horizontal", 2))
sketch8.addConstraint(Sketcher.Constraint("Vertical", 3))
sketch8.addConstraint(Sketcher.Constraint("Equal", 2, 1))
sketch8.addConstraint(Sketcher.Constraint("DistanceX", 0, 2, 0, 1, 10.0))
sketch8.addConstraint(Sketcher.Constraint("DistanceX", 0, 2, -1, 1, 55.0))
sketch8.addConstraint(Sketcher.Constraint("DistanceY", -1, 1, 0, 2, 3.0))
pocket2 = body.newObject("PartDesign::Pocket", "Pocket001")
pocket2.Profile = sketch8
pocket2.Length = 10
pocket2.Reversed = True

doc.recompute()
